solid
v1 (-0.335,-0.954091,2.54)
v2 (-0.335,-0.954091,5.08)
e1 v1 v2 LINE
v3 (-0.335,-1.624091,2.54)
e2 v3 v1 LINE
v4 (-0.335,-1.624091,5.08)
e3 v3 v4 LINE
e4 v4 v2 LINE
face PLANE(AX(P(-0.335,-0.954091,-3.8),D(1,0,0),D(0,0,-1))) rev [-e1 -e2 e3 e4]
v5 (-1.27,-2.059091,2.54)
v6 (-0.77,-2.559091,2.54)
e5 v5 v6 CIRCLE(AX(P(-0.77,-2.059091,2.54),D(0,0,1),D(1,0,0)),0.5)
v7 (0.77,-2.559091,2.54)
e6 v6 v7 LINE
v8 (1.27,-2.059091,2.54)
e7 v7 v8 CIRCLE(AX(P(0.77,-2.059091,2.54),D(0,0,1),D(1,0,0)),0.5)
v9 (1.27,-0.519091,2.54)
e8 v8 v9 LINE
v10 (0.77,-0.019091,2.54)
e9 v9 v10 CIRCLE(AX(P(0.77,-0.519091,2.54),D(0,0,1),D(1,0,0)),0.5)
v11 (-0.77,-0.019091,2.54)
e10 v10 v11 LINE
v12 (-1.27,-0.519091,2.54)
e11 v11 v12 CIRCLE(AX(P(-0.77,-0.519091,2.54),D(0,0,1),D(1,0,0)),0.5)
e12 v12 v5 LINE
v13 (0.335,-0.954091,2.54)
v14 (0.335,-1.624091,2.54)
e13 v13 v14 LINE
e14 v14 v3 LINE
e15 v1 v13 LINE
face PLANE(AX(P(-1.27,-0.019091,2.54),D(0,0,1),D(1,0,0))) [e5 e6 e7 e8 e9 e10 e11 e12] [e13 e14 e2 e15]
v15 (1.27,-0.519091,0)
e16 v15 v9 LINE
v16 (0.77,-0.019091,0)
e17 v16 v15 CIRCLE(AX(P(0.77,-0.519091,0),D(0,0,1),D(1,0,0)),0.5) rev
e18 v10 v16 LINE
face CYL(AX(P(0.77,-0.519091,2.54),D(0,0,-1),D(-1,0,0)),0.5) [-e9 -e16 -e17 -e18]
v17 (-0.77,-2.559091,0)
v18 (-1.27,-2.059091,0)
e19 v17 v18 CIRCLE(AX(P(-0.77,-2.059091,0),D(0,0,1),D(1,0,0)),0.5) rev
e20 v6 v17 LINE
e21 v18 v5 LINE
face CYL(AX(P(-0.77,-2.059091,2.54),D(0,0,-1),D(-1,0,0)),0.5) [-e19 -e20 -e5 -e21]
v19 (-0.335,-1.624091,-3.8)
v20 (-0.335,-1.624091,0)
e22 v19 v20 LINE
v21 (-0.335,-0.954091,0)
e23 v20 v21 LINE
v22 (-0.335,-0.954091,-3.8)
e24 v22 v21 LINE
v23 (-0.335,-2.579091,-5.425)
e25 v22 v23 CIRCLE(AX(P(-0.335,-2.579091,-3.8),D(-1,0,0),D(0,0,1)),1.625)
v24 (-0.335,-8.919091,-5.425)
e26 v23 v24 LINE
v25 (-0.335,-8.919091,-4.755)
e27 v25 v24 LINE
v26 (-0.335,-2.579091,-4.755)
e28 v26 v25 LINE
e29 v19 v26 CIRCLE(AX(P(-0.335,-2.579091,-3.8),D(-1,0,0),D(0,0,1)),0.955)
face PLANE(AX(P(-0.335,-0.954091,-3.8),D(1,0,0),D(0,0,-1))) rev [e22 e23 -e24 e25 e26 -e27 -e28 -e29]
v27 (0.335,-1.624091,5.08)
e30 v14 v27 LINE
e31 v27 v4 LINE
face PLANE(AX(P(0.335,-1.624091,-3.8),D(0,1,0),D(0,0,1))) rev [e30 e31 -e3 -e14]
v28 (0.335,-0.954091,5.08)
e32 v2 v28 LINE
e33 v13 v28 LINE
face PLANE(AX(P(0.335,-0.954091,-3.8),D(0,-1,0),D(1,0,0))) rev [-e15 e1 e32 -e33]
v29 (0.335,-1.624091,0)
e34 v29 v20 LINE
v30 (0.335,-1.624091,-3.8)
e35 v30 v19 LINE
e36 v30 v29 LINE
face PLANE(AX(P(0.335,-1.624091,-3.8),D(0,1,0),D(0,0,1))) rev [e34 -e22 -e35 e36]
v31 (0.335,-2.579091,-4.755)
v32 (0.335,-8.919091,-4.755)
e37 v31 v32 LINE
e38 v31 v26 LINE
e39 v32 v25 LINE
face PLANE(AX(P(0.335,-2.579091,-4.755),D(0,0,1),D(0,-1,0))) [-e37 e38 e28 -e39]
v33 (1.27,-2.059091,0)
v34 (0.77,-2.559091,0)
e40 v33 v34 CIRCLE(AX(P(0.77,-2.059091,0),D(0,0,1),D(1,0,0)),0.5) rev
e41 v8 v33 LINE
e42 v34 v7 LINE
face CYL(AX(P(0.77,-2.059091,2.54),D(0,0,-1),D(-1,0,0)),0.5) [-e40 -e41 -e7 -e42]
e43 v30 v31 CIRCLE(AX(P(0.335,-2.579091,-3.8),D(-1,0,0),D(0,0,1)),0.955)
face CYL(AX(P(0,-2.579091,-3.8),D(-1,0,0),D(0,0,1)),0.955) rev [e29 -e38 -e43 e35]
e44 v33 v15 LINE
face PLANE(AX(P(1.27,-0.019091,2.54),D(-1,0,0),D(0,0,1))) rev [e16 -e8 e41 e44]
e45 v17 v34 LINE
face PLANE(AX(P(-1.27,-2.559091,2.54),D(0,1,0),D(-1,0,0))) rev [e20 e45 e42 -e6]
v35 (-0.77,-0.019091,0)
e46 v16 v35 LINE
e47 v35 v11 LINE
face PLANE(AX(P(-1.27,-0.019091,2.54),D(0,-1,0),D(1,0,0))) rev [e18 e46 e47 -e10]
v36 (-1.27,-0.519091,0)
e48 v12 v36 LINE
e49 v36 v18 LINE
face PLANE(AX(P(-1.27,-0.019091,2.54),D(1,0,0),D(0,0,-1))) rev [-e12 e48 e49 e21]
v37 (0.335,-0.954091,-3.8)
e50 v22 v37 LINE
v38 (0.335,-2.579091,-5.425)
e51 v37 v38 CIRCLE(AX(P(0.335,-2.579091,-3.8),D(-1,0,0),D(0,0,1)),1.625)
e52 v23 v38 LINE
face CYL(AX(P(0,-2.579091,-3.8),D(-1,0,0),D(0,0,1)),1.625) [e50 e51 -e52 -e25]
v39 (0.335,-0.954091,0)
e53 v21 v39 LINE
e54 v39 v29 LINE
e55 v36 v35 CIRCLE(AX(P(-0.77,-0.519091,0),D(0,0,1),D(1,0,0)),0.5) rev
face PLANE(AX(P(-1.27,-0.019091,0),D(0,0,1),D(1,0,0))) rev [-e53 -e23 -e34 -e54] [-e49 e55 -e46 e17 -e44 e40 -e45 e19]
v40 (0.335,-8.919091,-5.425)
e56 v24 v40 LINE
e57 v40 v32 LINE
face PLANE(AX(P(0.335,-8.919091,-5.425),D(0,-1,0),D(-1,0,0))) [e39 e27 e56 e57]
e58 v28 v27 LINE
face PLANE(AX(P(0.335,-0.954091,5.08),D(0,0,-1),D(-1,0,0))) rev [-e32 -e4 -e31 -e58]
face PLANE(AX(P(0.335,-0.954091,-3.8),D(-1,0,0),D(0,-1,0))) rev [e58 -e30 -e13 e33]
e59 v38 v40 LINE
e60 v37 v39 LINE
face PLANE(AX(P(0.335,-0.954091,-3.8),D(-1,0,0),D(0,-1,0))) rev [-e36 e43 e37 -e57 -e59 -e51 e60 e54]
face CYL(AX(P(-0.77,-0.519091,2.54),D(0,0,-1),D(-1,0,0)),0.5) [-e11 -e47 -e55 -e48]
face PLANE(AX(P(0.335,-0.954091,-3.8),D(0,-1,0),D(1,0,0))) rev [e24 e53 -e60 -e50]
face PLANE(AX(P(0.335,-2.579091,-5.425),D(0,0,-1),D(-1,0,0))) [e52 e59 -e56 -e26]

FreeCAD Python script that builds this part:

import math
import FreeCAD as App
import Part
import Sketcher
Q = App.Units.Quantity


def edges_at(feature, points):
    """Names of the edges that pass closest to the given points."""
    edges = feature.Shape.Edges
    near = lambda p: min(range(len(edges)), key=lambda i: edges[i].distToShape(Part.Vertex(*p))[0])
    return sorted({f"Edge{near(p) + 1}" for p in points})

doc = App.newDocument("Part")
params = doc.addObject("Spreadsheet::Sheet", "Params")
for row, (alias, value) in enumerate([
    ("sketch1_width", "2.54 mm"),
    ("pad1_length", "2.54 mm"),
    ("sketch2_width", "0.67 mm"),
    ("sketch3_radius", "1.28 mm"),
    ("sketch3_width", "6.34 mm"),
    ("sketch3_height", "8.88 mm"),
    ("fillet_radius", "0.5 mm"),
], start=1):
    params.set(f"A{row}", alias)
    params.set(f"B{row}", "=" + value)
    params.setAlias(f"B{row}", alias)

body = doc.addObject("PartDesign::Body", "Body")

# Sketch on XY plane
sketch1 = body.newObject("Sketcher::SketchObject", "Sketch")
sketch1.AttachmentSupport = (doc.getObject("XY_Plane"), [""])
sketch1.MapMode = "FlatFace"
sketch1.addGeometry([
    Part.LineSegment(App.Vector(-1.3, 0, 0), App.Vector(-1.3, -2.6, 0)),
    Part.LineSegment(App.Vector(-1.3, -2.6, 0), App.Vector(1.3, -2.6, 0)),
    Part.LineSegment(App.Vector(1.3, -2.6, 0), App.Vector(1.3, 0, 0)),
    Part.LineSegment(App.Vector(1.3, 0, 0), App.Vector(-1.3, 0, 0)),
], False)
sketch1.addConstraint([
    Sketcher.Constraint("Coincident", 0, 2, 1, 1),
    Sketcher.Constraint("Coincident", 1, 2, 2, 1),
    Sketcher.Constraint("Coincident", 2, 2, 3, 1),
    Sketcher.Constraint("Coincident", 3, 2, 0, 1),
    Sketcher.Constraint("Vertical", 0),
    Sketcher.Constraint("Horizontal", 1),
    Sketcher.Constraint("Vertical", 2),
    Sketcher.Constraint("Horizontal", 3),
    Sketcher.Constraint("Equal", 3, 0),
    Sketcher.Constraint("DistanceX", 1, 1, 1, 2, Q("2.54 mm")),
    Sketcher.Constraint("DistanceX", 0, 2, -1, 1, Q("1.27 mm")),
    Sketcher.Constraint("DistanceY", 0, 2, -1, 1, Q("2.559091 mm")),
])
sketch1.setExpression("Constraints[9]", "Params.sketch1_width")
pad1 = body.newObject("PartDesign::Pad", "Pad")
pad1.Profile = sketch1
pad1.setExpression("Length", "Params.pad1_length")

# Sketch on XY plane
sketch2 = body.newObject("Sketcher::SketchObject", "Sketch001")
sketch2.AttachmentSupport = (doc.getObject("XY_Plane"), [""])
sketch2.MapMode = "FlatFace"
sketch2.AttachmentOffset = App.Placement(App.Vector(0, 0, 5.08), App.Rotation())
sketch2.addGeometry([
    Part.LineSegment(App.Vector(0.3, -1, 0), App.Vector(0.3, -1.6, 0)),
    Part.LineSegment(App.Vector(0.3, -1.6, 0), App.Vector(-0.3, -1.6, 0)),
    Part.LineSegment(App.Vector(-0.3, -1.6, 0), App.Vector(-0.3, -1, 0)),
    Part.LineSegment(App.Vector(-0.3, -1, 0), App.Vector(0.3, -1, 0)),
], False)
sketch2.addConstraint([
    Sketcher.Constraint("Coincident", 0, 2, 1, 1),
    Sketcher.Constraint("Coincident", 1, 2, 2, 1),
    Sketcher.Constraint("Coincident", 2, 2, 3, 1),
    Sketcher.Constraint("Coincident", 3, 2, 0, 1),
    Sketcher.Constraint("Vertical", 0),
    Sketcher.Constraint("Horizontal", 1),
    Sketcher.Constraint("Vertical", 2),
    Sketcher.Constraint("Horizontal", 3),
    Sketcher.Constraint("Equal", 3, 0),
    Sketcher.Constraint("DistanceX", 1, 2, 1, 1, Q("0.67 mm")),
    Sketcher.Constraint("DistanceX", -1, 1, 0, 2, Q("0.335 mm")),
    Sketcher.Constraint("DistanceY", 0, 2, -1, 1, Q("1.624091 mm")),
])
sketch2.setExpression("Constraints[9]", "Params.sketch2_width")

# Sketch on YZ plane
sketch3 = body.newObject("Sketcher::SketchObject", "Sketch002")
sketch3.AttachmentSupport = (doc.getObject("YZ_Plane"), [""])
sketch3.MapMode = "FlatFace"
sketch3.addGeometry([
    Part.LineSegment(App.Vector(-1.3, 5.1, 0), App.Vector(-1.3, -3.8, 0)),
    Part.ArcOfCircle(Part.Circle(App.Vector(-2.6, -3.8, 0), App.Vector(0, 0, 1), 1.3), math.radians(-90), math.radians(0)),
    Part.LineSegment(App.Vector(-2.6, -5.1, 0), App.Vector(-8.9, -5.1, 0)),
], False)
sketch3.addConstraint([
    Sketcher.Constraint("Tangent", 0, 2, 1, 2),
    Sketcher.Constraint("Tangent", 1, 1, 2, 1),
    Sketcher.Constraint("Vertical", 0),
    Sketcher.Constraint("Horizontal", 2),
    Sketcher.Constraint("Radius", 1, Q("1.28 mm")),
    Sketcher.Constraint("DistanceX", 2, 2, 2, 1, Q("6.34 mm")),
    Sketcher.Constraint("DistanceY", 0, 2, 0, 1, Q("8.88 mm")),
    Sketcher.Constraint("DistanceY", 1, 3, -1, 1, Q("3.8 mm")),
    Sketcher.Constraint("DistanceX", 1, 3, -1, 1, Q("2.579091 mm")),
])
sketch3.setExpression("Constraints[4]", "Params.sketch3_radius")
sketch3.setExpression("Constraints[5]", "Params.sketch3_width")
sketch3.setExpression("Constraints[6]", "Params.sketch3_height")
doc.recompute()

additivepipe = body.newObject("PartDesign::AdditivePipe", "AdditivePipe")
additivepipe.Profile = sketch2
additivepipe.Spine = (sketch3, ["Edge1", "Edge2", "Edge3"])
doc.recompute()

fillet = body.newObject("PartDesign::Fillet", "Fillet")
fillet.Base = (additivepipe, edges_at(additivepipe, [
    (-1.27, -0.019, 1.27),
    (1.27, -0.019, 1.27),
    (1.27, -2.559, 1.27),
    (-1.27, -2.559, 1.27),
]))
fillet.setExpression("Radius", "Params.fillet_radius")

doc.recompute()
